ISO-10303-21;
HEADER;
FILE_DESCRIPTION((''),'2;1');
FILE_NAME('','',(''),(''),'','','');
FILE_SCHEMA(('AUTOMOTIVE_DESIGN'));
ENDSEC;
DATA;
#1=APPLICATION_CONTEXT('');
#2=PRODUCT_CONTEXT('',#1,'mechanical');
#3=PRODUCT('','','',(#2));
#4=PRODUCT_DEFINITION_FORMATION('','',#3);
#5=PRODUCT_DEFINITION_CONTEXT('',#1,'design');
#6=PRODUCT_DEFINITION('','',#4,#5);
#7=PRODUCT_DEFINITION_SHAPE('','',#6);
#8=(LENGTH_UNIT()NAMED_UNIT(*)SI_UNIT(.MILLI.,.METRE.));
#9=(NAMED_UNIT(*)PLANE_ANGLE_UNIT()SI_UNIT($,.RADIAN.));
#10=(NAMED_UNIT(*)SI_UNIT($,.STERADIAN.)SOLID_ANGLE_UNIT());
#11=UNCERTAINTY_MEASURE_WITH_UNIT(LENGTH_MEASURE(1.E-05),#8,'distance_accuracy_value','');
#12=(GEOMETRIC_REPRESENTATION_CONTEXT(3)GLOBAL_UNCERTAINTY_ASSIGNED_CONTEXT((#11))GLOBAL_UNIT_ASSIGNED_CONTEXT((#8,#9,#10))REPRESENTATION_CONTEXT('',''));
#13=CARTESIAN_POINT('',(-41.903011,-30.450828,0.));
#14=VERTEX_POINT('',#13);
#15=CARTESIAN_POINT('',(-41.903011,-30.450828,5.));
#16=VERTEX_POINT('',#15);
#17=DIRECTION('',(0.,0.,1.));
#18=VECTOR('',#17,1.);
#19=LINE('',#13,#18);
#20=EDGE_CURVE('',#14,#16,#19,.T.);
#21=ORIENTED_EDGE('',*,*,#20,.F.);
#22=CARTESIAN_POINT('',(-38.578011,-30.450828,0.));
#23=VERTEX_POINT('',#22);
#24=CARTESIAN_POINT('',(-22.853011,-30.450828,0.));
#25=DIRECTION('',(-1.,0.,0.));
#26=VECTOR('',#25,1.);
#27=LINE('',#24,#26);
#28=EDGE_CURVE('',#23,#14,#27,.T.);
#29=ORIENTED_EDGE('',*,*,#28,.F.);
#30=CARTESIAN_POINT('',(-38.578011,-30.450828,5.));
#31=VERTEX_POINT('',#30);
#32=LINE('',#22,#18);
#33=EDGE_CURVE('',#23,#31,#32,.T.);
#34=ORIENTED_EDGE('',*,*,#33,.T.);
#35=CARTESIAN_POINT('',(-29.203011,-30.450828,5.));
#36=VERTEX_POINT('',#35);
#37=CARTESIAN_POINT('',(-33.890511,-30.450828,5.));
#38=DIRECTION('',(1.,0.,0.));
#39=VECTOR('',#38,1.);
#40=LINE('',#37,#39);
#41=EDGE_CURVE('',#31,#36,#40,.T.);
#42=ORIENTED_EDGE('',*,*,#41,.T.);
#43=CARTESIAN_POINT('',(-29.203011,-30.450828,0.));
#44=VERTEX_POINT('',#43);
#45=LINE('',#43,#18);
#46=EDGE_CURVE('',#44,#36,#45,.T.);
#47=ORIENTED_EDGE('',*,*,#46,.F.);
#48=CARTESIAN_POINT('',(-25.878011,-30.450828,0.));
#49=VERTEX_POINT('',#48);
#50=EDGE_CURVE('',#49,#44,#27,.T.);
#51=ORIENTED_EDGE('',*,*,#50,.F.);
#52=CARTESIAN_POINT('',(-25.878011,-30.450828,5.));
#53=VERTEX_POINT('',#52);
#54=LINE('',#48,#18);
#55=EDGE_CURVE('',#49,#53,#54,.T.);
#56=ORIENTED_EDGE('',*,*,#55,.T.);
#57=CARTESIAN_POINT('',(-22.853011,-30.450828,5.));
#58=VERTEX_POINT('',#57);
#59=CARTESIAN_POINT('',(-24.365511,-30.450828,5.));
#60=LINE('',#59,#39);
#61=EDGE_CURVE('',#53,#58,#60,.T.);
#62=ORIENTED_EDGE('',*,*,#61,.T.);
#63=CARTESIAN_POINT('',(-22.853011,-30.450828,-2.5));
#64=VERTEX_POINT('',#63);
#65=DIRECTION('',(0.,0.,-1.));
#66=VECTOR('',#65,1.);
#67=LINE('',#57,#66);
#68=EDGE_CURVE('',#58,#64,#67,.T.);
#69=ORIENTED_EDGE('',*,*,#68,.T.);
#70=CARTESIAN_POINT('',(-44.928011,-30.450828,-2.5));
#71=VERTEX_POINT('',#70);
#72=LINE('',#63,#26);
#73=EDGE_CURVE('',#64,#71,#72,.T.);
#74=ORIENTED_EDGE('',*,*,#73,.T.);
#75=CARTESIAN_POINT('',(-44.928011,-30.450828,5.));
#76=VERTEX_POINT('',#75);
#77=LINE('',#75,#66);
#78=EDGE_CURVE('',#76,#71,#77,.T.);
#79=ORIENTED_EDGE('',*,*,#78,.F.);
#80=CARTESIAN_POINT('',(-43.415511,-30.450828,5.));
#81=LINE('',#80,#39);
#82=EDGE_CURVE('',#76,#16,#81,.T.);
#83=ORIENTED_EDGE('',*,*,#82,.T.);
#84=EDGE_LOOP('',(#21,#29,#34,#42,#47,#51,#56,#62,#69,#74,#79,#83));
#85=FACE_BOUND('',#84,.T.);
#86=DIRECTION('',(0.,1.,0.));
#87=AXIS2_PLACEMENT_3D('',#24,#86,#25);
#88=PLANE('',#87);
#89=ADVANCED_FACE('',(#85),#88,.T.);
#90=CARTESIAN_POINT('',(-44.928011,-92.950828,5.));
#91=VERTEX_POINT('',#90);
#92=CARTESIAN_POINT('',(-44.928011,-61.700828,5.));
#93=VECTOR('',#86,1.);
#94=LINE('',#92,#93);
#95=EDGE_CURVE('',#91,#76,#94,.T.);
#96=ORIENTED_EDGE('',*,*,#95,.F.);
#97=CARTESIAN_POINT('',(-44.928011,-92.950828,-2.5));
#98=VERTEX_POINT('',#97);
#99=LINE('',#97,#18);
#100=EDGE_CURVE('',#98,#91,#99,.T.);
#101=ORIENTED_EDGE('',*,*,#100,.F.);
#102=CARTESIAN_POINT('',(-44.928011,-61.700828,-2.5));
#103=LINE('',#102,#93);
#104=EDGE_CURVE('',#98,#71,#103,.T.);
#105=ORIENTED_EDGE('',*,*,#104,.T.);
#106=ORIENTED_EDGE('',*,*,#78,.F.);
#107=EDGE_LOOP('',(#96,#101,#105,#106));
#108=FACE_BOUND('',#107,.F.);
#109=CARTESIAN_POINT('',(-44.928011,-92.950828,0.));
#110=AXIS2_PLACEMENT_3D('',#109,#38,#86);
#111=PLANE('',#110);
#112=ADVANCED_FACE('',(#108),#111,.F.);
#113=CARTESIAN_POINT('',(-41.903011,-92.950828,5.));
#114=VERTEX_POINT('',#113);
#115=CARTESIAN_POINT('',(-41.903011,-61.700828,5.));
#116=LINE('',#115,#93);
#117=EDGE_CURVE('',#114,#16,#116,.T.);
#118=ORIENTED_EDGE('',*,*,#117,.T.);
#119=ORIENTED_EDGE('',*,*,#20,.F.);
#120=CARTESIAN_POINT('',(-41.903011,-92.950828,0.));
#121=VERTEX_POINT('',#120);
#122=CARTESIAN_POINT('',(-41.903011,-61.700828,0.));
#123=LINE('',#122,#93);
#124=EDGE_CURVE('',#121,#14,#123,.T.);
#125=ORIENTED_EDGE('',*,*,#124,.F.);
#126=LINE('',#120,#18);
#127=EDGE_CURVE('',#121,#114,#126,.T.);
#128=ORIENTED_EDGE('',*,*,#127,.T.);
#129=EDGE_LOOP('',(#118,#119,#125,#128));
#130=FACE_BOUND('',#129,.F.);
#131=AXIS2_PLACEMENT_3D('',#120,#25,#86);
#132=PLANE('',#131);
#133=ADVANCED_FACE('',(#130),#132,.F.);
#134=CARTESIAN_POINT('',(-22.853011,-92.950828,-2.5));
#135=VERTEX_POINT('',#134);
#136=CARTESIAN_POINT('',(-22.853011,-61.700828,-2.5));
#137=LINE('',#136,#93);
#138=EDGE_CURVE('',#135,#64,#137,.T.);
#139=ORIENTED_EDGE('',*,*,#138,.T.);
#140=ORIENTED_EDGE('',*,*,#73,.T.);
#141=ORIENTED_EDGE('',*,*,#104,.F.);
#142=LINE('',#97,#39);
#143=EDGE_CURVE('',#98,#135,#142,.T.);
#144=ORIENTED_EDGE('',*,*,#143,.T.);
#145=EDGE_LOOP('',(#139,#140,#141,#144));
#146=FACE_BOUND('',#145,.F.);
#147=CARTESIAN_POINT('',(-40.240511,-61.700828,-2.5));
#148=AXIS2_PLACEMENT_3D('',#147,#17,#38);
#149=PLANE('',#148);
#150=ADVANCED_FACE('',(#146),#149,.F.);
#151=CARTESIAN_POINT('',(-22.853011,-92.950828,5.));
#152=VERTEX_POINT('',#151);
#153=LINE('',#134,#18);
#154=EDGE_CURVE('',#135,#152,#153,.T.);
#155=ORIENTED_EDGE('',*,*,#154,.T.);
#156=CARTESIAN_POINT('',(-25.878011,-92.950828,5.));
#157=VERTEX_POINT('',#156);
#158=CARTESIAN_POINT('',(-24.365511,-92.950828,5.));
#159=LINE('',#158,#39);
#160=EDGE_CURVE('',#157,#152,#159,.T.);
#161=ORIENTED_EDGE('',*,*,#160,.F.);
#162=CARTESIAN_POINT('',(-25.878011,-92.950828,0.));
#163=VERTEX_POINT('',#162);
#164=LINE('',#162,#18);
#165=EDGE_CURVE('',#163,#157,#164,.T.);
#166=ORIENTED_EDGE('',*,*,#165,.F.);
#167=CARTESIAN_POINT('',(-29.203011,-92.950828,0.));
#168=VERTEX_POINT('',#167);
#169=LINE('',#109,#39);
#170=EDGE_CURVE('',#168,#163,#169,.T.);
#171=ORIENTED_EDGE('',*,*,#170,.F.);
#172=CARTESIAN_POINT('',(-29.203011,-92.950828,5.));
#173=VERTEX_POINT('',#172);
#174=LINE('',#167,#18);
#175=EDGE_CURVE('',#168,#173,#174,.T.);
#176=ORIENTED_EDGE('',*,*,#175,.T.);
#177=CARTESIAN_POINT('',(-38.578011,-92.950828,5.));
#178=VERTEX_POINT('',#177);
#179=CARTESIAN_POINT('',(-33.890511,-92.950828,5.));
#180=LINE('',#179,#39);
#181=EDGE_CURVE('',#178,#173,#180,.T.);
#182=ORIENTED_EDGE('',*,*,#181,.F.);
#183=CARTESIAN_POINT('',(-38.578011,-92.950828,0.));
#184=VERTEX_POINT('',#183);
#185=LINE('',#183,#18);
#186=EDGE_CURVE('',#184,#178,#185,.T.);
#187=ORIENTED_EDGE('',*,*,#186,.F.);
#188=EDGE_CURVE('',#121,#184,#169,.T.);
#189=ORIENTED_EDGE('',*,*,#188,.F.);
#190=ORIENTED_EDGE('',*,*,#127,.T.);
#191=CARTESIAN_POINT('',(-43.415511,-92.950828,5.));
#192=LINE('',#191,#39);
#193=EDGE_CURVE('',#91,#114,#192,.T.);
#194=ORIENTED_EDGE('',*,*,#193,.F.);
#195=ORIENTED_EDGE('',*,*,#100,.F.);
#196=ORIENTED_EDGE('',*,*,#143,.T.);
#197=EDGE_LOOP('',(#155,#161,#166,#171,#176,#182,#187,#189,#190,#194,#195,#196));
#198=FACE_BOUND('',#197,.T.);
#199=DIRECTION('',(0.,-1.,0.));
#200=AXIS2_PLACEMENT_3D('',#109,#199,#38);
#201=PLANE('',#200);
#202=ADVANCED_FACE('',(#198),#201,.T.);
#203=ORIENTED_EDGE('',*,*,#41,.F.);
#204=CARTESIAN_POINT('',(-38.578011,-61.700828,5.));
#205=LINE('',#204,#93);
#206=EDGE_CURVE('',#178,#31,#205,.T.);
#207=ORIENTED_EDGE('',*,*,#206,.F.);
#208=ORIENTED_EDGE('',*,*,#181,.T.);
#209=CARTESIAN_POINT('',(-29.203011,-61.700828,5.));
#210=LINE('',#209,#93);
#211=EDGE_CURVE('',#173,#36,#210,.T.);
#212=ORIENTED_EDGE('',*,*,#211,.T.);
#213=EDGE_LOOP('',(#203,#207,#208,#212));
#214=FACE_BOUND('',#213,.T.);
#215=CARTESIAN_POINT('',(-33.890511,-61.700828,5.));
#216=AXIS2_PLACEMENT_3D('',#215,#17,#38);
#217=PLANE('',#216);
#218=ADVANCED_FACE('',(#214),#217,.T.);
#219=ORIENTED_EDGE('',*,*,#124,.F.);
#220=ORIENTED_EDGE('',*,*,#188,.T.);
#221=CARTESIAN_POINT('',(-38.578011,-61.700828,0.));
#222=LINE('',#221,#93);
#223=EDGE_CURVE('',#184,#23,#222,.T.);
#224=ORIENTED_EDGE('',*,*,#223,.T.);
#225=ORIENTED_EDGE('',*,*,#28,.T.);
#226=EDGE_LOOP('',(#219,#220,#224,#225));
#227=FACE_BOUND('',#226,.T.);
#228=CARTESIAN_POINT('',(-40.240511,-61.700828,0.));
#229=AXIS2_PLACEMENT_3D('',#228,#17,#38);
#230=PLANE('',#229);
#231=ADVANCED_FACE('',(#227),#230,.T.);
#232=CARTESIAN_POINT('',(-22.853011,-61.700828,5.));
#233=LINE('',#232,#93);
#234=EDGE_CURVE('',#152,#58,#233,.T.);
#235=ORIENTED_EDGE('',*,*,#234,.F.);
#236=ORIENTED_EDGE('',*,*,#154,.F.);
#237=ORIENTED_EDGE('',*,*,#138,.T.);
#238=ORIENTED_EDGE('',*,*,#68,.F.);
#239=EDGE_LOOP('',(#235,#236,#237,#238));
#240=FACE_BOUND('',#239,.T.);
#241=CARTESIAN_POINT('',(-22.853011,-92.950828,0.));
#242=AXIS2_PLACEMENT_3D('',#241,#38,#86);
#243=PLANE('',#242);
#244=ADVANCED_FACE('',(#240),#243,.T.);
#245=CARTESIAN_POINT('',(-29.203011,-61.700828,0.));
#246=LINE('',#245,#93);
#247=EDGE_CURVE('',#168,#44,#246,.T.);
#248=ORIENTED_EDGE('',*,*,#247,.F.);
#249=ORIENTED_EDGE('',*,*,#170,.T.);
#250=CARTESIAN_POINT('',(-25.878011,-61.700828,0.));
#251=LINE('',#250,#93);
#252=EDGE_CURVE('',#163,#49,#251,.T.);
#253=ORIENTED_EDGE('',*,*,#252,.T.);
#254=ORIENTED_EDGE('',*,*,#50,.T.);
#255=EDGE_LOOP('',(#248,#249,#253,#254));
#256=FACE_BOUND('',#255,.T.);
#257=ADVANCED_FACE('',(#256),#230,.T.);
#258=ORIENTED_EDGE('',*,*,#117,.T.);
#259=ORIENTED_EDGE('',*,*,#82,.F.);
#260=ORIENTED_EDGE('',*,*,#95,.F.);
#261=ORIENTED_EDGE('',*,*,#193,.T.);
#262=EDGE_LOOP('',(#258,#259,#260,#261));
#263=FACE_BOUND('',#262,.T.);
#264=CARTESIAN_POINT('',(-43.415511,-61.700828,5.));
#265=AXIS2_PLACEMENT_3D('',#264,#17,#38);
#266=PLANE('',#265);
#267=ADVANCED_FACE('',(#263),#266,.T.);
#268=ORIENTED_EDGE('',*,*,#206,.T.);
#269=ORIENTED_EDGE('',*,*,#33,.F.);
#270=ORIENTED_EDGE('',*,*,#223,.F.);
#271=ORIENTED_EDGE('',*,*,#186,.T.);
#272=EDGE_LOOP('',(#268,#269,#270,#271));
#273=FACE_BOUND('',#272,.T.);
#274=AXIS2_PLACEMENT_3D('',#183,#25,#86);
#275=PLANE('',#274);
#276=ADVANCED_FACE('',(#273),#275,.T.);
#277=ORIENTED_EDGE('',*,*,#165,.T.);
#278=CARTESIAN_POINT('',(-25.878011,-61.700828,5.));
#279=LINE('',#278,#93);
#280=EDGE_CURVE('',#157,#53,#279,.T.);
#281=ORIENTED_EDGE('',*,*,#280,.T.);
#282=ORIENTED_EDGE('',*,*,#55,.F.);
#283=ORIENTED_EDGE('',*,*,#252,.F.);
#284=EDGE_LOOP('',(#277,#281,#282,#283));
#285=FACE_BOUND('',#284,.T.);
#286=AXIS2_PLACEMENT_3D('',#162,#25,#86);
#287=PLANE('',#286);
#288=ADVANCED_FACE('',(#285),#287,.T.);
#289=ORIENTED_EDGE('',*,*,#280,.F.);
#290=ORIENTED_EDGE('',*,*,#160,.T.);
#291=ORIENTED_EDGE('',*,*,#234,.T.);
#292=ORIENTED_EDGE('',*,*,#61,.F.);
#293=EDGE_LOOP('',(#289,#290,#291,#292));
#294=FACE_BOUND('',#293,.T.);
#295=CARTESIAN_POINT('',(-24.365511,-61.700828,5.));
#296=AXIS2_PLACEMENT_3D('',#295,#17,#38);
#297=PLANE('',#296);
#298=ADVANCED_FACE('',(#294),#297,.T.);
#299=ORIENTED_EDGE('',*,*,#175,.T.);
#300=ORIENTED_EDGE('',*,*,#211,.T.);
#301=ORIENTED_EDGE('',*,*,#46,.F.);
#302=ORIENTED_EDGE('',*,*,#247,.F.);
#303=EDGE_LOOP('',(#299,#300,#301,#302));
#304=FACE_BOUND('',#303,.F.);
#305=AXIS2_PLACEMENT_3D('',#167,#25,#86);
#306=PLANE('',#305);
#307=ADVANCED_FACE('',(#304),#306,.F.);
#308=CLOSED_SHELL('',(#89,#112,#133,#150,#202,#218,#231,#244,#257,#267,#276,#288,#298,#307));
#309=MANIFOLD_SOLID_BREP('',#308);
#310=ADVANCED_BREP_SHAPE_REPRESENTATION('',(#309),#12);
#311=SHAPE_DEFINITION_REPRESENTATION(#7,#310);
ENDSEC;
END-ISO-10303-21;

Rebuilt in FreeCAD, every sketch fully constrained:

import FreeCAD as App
import Part
import Sketcher
Q = App.Units.Quantity

doc = App.newDocument("Part")
params = doc.addObject("Spreadsheet::Sheet", "Params")
for row, (alias, value) in enumerate([
    ("sketch1_height", "62.5 mm"),
    ("pad1_length", "5 mm"),
    ("sketch2_height", "62.5 mm"),
    ("pad2_length", "2.5 mm"),
], start=1):
    params.set(f"A{row}", alias)
    params.set(f"B{row}", "=" + value)
    params.setAlias(f"B{row}", alias)

body = doc.addObject("PartDesign::Body", "Body")
body.AllowCompound = True

sketch1 = body.newObject("Sketcher::SketchObject", "Sketch")
sketch1.AttachmentSupport = (doc.getObject("XY_Plane"), [""])
sketch1.MapMode = "FlatFace"
sketch1.addGeometry(Part.LineSegment(App.Vector(-44.9, -30.5, 0), App.Vector(-44.9, -93, 0)), False)
sketch1.addGeometry(Part.LineSegment(App.Vector(-44.9, -93, 0), App.Vector(-41.9, -93, 0)), False)
sketch1.addGeometry(Part.LineSegment(App.Vector(-41.9, -93, 0), App.Vector(-41.9, -30.5, 0)), False)
sketch1.addGeometry(Part.LineSegment(App.Vector(-41.9, -30.5, 0), App.Vector(-44.9, -30.5, 0)), False)
sketch1.addGeometry(Part.LineSegment(App.Vector(-38.6, -30.5, 0), App.Vector(-38.6, -93, 0)), False)
sketch1.addGeometry(Part.LineSegment(App.Vector(-38.6, -93, 0), App.Vector(-29.2, -93, 0)), False)
sketch1.addGeometry(Part.LineSegment(App.Vector(-29.2, -93, 0), App.Vector(-29.2, -30.5, 0)), False)
sketch1.addGeometry(Part.LineSegment(App.Vector(-29.2, -30.5, 0), App.Vector(-38.6, -30.5, 0)), False)
sketch1.addGeometry(Part.LineSegment(App.Vector(-25.9, -30.5, 0), App.Vector(-25.9, -93, 0)), False)
sketch1.addGeometry(Part.LineSegment(App.Vector(-25.9, -93, 0), App.Vector(-22.9, -93, 0)), False)
sketch1.addGeometry(Part.LineSegment(App.Vector(-22.9, -93, 0), App.Vector(-22.9, -30.5, 0)), False)
sketch1.addGeometry(Part.LineSegment(App.Vector(-22.9, -30.5, 0), App.Vector(-25.9, -30.5, 0)), False)
sketch1.addConstraint(Sketcher.Constraint("Coincident", 0, 2, 1, 1))
sketch1.addConstraint(Sketcher.Constraint("Coincident", 1, 2, 2, 1))
sketch1.addConstraint(Sketcher.Constraint("Coincident", 2, 2, 3, 1))
sketch1.addConstraint(Sketcher.Constraint("Coincident", 3, 2, 0, 1))
sketch1.addConstraint(Sketcher.Constraint("Coincident", 4, 2, 5, 1))
sketch1.addConstraint(Sketcher.Constraint("Coincident", 5, 2, 6, 1))
sketch1.addConstraint(Sketcher.Constraint("Coincident", 6, 2, 7, 1))
sketch1.addConstraint(Sketcher.Constraint("Coincident", 7, 2, 4, 1))
sketch1.addConstraint(Sketcher.Constraint("Coincident", 8, 2, 9, 1))
sketch1.addConstraint(Sketcher.Constraint("Coincident", 9, 2, 10, 1))
sketch1.addConstraint(Sketcher.Constraint("Coincident", 10, 2, 11, 1))
sketch1.addConstraint(Sketcher.Constraint("Coincident", 11, 2, 8, 1))
sketch1.addConstraint(Sketcher.Constraint("Vertical", 0))
sketch1.addConstraint(Sketcher.Constraint("Horizontal", 1))
sketch1.addConstraint(Sketcher.Constraint("Vertical", 2))
sketch1.addConstraint(Sketcher.Constraint("Horizontal", 3))
sketch1.addConstraint(Sketcher.Constraint("Vertical", 4))
sketch1.addConstraint(Sketcher.Constraint("Horizontal", 5))
sketch1.addConstraint(Sketcher.Constraint("Vertical", 6))
sketch1.addConstraint(Sketcher.Constraint("Horizontal", 7))
sketch1.addConstraint(Sketcher.Constraint("Vertical", 8))
sketch1.addConstraint(Sketcher.Constraint("Horizontal", 9))
sketch1.addConstraint(Sketcher.Constraint("Vertical", 10))
sketch1.addConstraint(Sketcher.Constraint("Horizontal", 11))
sketch1.addConstraint(Sketcher.Constraint("Horizontal", 1, 2, 4, 2))
sketch1.addConstraint(Sketcher.Constraint("Horizontal", 3, 2, 6, 2))
sketch1.addConstraint(Sketcher.Constraint("Horizontal", 5, 2, 8, 2))
sketch1.addConstraint(Sketcher.Constraint("Horizontal", 7, 2, 10, 2))
sketch1.addConstraint(Sketcher.Constraint("Equal", 3, 9))
sketch1.addConstraint(Sketcher.Constraint("DistanceY", 0, 2, 0, 1, Q("62.5 mm")))
sketch1.addConstraint(Sketcher.Constraint("DistanceX", 1, 2, 5, 2, Q("12.7 mm")))
sketch1.addConstraint(Sketcher.Constraint("DistanceX", 4, 2, 8, 2, Q("12.7 mm")))
sketch1.addConstraint(Sketcher.Constraint("DistanceX", 1, 1, 1, 2, Q("3.025 mm")))
sketch1.addConstraint(Sketcher.Constraint("DistanceX", 5, 1, 5, 2, Q("9.375 mm")))
sketch1.addConstraint(Sketcher.Constraint("DistanceX", 0, 2, -1, 1, Q("44.928011 mm")))
sketch1.addConstraint(Sketcher.Constraint("DistanceY", 0, 2, -1, 1, Q("92.950828 mm")))
sketch1.setExpression("Constraints[29]", "Params.sketch1_height")
pad1 = body.newObject("PartDesign::Pad", "Pad")
pad1.Profile = sketch1
pad1.setExpression("Length", "Params.pad1_length")

sketch2 = body.newObject("Sketcher::SketchObject", "Sketch001")
sketch2.AttachmentSupport = (doc.getObject("XY_Plane"), [""])
sketch2.MapMode = "FlatFace"
sketch2.addGeometry(Part.LineSegment(App.Vector(-45, -30, 0), App.Vector(-45, -93, 0)), False)
sketch2.addGeometry(Part.LineSegment(App.Vector(-45, -93, 0), App.Vector(-23, -93, 0)), False)
sketch2.addGeometry(Part.LineSegment(App.Vector(-23, -93, 0), App.Vector(-23, -30, 0)), False)
sketch2.addGeometry(Part.LineSegment(App.Vector(-23, -30, 0), App.Vector(-45, -30, 0)), False)
sketch2.addConstraint(Sketcher.Constraint("Coincident", 0, 2, 1, 1))
sketch2.addConstraint(Sketcher.Constraint("Coincident", 1, 2, 2, 1))
sketch2.addConstraint(Sketcher.Constraint("Coincident", 2, 2, 3, 1))
sketch2.addConstraint(Sketcher.Constraint("Coincident", 3, 2, 0, 1))
sketch2.addConstraint(Sketcher.Constraint("Vertical", 0))
sketch2.addConstraint(Sketcher.Constraint("Horizontal", 1))
sketch2.addConstraint(Sketcher.Constraint("Vertical", 2))
sketch2.addConstraint(Sketcher.Constraint("Horizontal", 3))
sketch2.addConstraint(Sketcher.Constraint("DistanceY", 0, 2, 0, 1, Q("62.5 mm")))
sketch2.addConstraint(Sketcher.Constraint("DistanceX", 1, 1, 1, 2, Q("22.075 mm")))
sketch2.addConstraint(Sketcher.Constraint("DistanceX", 0, 2, -1, 1, Q("44.928011 mm")))
sketch2.addConstraint(Sketcher.Constraint("DistanceY", 0, 2, -1, 1, Q("92.950828 mm")))
sketch2.setExpression("Constraints[8]", "Params.sketch2_height")
pad2 = body.newObject("PartDesign::Pad", "Pad001")
pad2.Profile = sketch2
pad2.setExpression("Length", "Params.pad2_length")
pad2.Reversed = True

doc.recompute()
